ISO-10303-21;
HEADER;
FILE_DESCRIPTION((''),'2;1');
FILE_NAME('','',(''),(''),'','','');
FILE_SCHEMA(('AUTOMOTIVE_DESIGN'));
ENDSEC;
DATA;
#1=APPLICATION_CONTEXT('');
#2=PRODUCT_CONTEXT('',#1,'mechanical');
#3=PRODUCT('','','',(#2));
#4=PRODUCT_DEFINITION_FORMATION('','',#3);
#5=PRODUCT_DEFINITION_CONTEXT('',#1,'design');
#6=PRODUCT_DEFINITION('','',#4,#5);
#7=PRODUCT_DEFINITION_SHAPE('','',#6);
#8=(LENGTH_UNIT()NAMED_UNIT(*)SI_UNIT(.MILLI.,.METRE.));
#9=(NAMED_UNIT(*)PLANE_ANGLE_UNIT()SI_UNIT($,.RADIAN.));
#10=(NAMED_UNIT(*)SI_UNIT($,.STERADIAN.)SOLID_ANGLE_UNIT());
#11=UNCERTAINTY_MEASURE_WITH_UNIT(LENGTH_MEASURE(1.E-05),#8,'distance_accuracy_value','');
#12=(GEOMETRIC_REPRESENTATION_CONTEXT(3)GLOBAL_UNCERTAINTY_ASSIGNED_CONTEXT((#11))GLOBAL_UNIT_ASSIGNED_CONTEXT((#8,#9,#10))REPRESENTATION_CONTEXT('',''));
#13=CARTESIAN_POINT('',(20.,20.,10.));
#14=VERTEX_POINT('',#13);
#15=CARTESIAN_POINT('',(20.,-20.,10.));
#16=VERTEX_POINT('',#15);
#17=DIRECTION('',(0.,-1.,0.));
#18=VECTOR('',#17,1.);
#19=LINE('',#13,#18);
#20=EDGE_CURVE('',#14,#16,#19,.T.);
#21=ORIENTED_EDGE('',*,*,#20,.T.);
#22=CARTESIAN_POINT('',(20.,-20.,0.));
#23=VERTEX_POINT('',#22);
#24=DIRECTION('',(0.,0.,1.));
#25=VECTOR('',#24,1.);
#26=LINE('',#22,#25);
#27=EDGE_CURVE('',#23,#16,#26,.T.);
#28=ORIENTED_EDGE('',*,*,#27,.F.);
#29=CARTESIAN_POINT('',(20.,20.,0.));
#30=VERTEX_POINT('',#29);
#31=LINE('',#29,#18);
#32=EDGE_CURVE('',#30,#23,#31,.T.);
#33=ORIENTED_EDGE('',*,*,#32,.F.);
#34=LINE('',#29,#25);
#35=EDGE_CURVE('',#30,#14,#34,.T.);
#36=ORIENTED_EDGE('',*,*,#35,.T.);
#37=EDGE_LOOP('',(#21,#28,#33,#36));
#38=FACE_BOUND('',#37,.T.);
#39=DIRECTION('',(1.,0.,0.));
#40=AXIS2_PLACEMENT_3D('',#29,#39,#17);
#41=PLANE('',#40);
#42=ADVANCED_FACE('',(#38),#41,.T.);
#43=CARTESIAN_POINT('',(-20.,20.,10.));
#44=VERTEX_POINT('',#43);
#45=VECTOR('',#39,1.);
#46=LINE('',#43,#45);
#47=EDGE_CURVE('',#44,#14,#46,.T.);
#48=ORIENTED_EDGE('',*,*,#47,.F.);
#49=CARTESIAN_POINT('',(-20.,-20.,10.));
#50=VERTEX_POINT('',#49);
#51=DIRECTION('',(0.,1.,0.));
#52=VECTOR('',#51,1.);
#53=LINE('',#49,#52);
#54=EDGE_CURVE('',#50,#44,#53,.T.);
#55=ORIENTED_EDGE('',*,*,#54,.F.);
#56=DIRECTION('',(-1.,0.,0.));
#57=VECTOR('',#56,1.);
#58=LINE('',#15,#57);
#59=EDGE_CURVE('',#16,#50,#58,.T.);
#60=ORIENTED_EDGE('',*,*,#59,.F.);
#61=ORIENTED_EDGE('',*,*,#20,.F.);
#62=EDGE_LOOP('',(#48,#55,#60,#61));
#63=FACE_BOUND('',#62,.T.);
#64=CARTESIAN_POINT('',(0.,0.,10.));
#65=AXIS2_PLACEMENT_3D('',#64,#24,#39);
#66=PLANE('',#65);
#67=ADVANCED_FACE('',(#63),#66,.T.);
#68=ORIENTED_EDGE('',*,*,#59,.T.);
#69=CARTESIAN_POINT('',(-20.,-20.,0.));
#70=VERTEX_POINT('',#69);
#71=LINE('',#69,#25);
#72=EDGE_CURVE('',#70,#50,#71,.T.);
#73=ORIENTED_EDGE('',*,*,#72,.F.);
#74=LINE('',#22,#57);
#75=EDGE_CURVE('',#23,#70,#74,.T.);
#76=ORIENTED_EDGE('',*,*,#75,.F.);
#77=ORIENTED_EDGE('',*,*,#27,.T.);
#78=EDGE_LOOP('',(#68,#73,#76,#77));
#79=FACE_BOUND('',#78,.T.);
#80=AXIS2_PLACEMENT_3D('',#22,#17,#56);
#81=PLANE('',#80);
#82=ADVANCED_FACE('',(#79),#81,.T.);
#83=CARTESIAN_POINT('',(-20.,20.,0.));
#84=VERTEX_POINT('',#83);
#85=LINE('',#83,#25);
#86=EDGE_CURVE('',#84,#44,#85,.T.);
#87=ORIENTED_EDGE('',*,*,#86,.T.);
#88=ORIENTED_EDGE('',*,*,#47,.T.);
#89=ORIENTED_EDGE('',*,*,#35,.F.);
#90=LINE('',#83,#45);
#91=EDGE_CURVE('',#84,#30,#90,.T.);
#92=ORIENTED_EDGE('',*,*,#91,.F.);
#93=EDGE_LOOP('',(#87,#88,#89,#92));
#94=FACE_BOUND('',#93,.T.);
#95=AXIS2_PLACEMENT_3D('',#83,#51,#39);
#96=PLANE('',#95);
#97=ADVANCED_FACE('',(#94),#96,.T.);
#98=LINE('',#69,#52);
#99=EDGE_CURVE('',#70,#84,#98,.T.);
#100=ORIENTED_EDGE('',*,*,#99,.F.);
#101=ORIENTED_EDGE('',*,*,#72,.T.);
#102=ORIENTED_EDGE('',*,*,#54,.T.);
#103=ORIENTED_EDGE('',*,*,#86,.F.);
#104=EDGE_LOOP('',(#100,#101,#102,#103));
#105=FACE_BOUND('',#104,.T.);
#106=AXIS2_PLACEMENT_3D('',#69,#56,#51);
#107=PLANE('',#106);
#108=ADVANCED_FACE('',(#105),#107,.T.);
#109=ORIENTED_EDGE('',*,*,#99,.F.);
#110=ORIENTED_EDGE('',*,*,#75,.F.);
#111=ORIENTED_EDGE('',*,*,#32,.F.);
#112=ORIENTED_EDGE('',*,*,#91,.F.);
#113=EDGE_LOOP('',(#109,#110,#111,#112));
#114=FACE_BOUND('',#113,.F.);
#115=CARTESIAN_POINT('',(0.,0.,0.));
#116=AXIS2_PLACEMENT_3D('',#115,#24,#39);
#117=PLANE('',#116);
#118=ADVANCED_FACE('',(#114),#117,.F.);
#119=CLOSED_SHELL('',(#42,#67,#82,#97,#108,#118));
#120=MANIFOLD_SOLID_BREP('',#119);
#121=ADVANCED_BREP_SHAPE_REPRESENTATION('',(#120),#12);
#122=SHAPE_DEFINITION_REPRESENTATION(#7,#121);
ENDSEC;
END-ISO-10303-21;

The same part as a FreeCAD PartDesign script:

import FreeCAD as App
import Part
import Sketcher
from FreeCAD import Vector
Q = App.Units.Quantity


def add_polygon(sketch, points):
    """Adds a closed chain of lines whose ends are joined by coincident constraints."""
    first, n = sketch.GeometryCount, len(points)
    for a, b in zip(points, points[1:] + points[:1]):
        sketch.addGeometry(Part.LineSegment(App.Vector(*a, 0), App.Vector(*b, 0)), False)
    for i in range(n):
        sketch.addConstraint(Sketcher.Constraint("Coincident", first + i, 2, first + (i + 1) % n, 1))

doc = App.newDocument("Part")
body = doc.addObject("PartDesign::Body", "Body")

# Sketch on XY plane
sketch1 = body.newObject("Sketcher::SketchObject", "Sketch")
sketch1.AttachmentSupport = (doc.getObject("XY_Plane"), [""])
sketch1.MapMode = "FlatFace"
add_polygon(sketch1, [(20, 20), (-20, 20), (-20, -20), (20, -20)])  # lines 0-3
sketch1.addConstraint([
    Sketcher.Constraint("Horizontal", 0),
    Sketcher.Constraint("Vertical", 1),
    Sketcher.Constraint("Horizontal", 2),
    Sketcher.Constraint("Vertical", 3),
    Sketcher.Constraint("Symmetric", 0, 2, 2, 2, -1, 1),
    Sketcher.Constraint("Equal", 2, 1),
    Sketcher.Constraint("DistanceX", 0, 2, 0, 1, Q("40 mm")),
])
pad1 = body.newObject("PartDesign::Pad", "Pad")
pad1.Profile = sketch1
pad1.Length = 10

doc.recompute()
